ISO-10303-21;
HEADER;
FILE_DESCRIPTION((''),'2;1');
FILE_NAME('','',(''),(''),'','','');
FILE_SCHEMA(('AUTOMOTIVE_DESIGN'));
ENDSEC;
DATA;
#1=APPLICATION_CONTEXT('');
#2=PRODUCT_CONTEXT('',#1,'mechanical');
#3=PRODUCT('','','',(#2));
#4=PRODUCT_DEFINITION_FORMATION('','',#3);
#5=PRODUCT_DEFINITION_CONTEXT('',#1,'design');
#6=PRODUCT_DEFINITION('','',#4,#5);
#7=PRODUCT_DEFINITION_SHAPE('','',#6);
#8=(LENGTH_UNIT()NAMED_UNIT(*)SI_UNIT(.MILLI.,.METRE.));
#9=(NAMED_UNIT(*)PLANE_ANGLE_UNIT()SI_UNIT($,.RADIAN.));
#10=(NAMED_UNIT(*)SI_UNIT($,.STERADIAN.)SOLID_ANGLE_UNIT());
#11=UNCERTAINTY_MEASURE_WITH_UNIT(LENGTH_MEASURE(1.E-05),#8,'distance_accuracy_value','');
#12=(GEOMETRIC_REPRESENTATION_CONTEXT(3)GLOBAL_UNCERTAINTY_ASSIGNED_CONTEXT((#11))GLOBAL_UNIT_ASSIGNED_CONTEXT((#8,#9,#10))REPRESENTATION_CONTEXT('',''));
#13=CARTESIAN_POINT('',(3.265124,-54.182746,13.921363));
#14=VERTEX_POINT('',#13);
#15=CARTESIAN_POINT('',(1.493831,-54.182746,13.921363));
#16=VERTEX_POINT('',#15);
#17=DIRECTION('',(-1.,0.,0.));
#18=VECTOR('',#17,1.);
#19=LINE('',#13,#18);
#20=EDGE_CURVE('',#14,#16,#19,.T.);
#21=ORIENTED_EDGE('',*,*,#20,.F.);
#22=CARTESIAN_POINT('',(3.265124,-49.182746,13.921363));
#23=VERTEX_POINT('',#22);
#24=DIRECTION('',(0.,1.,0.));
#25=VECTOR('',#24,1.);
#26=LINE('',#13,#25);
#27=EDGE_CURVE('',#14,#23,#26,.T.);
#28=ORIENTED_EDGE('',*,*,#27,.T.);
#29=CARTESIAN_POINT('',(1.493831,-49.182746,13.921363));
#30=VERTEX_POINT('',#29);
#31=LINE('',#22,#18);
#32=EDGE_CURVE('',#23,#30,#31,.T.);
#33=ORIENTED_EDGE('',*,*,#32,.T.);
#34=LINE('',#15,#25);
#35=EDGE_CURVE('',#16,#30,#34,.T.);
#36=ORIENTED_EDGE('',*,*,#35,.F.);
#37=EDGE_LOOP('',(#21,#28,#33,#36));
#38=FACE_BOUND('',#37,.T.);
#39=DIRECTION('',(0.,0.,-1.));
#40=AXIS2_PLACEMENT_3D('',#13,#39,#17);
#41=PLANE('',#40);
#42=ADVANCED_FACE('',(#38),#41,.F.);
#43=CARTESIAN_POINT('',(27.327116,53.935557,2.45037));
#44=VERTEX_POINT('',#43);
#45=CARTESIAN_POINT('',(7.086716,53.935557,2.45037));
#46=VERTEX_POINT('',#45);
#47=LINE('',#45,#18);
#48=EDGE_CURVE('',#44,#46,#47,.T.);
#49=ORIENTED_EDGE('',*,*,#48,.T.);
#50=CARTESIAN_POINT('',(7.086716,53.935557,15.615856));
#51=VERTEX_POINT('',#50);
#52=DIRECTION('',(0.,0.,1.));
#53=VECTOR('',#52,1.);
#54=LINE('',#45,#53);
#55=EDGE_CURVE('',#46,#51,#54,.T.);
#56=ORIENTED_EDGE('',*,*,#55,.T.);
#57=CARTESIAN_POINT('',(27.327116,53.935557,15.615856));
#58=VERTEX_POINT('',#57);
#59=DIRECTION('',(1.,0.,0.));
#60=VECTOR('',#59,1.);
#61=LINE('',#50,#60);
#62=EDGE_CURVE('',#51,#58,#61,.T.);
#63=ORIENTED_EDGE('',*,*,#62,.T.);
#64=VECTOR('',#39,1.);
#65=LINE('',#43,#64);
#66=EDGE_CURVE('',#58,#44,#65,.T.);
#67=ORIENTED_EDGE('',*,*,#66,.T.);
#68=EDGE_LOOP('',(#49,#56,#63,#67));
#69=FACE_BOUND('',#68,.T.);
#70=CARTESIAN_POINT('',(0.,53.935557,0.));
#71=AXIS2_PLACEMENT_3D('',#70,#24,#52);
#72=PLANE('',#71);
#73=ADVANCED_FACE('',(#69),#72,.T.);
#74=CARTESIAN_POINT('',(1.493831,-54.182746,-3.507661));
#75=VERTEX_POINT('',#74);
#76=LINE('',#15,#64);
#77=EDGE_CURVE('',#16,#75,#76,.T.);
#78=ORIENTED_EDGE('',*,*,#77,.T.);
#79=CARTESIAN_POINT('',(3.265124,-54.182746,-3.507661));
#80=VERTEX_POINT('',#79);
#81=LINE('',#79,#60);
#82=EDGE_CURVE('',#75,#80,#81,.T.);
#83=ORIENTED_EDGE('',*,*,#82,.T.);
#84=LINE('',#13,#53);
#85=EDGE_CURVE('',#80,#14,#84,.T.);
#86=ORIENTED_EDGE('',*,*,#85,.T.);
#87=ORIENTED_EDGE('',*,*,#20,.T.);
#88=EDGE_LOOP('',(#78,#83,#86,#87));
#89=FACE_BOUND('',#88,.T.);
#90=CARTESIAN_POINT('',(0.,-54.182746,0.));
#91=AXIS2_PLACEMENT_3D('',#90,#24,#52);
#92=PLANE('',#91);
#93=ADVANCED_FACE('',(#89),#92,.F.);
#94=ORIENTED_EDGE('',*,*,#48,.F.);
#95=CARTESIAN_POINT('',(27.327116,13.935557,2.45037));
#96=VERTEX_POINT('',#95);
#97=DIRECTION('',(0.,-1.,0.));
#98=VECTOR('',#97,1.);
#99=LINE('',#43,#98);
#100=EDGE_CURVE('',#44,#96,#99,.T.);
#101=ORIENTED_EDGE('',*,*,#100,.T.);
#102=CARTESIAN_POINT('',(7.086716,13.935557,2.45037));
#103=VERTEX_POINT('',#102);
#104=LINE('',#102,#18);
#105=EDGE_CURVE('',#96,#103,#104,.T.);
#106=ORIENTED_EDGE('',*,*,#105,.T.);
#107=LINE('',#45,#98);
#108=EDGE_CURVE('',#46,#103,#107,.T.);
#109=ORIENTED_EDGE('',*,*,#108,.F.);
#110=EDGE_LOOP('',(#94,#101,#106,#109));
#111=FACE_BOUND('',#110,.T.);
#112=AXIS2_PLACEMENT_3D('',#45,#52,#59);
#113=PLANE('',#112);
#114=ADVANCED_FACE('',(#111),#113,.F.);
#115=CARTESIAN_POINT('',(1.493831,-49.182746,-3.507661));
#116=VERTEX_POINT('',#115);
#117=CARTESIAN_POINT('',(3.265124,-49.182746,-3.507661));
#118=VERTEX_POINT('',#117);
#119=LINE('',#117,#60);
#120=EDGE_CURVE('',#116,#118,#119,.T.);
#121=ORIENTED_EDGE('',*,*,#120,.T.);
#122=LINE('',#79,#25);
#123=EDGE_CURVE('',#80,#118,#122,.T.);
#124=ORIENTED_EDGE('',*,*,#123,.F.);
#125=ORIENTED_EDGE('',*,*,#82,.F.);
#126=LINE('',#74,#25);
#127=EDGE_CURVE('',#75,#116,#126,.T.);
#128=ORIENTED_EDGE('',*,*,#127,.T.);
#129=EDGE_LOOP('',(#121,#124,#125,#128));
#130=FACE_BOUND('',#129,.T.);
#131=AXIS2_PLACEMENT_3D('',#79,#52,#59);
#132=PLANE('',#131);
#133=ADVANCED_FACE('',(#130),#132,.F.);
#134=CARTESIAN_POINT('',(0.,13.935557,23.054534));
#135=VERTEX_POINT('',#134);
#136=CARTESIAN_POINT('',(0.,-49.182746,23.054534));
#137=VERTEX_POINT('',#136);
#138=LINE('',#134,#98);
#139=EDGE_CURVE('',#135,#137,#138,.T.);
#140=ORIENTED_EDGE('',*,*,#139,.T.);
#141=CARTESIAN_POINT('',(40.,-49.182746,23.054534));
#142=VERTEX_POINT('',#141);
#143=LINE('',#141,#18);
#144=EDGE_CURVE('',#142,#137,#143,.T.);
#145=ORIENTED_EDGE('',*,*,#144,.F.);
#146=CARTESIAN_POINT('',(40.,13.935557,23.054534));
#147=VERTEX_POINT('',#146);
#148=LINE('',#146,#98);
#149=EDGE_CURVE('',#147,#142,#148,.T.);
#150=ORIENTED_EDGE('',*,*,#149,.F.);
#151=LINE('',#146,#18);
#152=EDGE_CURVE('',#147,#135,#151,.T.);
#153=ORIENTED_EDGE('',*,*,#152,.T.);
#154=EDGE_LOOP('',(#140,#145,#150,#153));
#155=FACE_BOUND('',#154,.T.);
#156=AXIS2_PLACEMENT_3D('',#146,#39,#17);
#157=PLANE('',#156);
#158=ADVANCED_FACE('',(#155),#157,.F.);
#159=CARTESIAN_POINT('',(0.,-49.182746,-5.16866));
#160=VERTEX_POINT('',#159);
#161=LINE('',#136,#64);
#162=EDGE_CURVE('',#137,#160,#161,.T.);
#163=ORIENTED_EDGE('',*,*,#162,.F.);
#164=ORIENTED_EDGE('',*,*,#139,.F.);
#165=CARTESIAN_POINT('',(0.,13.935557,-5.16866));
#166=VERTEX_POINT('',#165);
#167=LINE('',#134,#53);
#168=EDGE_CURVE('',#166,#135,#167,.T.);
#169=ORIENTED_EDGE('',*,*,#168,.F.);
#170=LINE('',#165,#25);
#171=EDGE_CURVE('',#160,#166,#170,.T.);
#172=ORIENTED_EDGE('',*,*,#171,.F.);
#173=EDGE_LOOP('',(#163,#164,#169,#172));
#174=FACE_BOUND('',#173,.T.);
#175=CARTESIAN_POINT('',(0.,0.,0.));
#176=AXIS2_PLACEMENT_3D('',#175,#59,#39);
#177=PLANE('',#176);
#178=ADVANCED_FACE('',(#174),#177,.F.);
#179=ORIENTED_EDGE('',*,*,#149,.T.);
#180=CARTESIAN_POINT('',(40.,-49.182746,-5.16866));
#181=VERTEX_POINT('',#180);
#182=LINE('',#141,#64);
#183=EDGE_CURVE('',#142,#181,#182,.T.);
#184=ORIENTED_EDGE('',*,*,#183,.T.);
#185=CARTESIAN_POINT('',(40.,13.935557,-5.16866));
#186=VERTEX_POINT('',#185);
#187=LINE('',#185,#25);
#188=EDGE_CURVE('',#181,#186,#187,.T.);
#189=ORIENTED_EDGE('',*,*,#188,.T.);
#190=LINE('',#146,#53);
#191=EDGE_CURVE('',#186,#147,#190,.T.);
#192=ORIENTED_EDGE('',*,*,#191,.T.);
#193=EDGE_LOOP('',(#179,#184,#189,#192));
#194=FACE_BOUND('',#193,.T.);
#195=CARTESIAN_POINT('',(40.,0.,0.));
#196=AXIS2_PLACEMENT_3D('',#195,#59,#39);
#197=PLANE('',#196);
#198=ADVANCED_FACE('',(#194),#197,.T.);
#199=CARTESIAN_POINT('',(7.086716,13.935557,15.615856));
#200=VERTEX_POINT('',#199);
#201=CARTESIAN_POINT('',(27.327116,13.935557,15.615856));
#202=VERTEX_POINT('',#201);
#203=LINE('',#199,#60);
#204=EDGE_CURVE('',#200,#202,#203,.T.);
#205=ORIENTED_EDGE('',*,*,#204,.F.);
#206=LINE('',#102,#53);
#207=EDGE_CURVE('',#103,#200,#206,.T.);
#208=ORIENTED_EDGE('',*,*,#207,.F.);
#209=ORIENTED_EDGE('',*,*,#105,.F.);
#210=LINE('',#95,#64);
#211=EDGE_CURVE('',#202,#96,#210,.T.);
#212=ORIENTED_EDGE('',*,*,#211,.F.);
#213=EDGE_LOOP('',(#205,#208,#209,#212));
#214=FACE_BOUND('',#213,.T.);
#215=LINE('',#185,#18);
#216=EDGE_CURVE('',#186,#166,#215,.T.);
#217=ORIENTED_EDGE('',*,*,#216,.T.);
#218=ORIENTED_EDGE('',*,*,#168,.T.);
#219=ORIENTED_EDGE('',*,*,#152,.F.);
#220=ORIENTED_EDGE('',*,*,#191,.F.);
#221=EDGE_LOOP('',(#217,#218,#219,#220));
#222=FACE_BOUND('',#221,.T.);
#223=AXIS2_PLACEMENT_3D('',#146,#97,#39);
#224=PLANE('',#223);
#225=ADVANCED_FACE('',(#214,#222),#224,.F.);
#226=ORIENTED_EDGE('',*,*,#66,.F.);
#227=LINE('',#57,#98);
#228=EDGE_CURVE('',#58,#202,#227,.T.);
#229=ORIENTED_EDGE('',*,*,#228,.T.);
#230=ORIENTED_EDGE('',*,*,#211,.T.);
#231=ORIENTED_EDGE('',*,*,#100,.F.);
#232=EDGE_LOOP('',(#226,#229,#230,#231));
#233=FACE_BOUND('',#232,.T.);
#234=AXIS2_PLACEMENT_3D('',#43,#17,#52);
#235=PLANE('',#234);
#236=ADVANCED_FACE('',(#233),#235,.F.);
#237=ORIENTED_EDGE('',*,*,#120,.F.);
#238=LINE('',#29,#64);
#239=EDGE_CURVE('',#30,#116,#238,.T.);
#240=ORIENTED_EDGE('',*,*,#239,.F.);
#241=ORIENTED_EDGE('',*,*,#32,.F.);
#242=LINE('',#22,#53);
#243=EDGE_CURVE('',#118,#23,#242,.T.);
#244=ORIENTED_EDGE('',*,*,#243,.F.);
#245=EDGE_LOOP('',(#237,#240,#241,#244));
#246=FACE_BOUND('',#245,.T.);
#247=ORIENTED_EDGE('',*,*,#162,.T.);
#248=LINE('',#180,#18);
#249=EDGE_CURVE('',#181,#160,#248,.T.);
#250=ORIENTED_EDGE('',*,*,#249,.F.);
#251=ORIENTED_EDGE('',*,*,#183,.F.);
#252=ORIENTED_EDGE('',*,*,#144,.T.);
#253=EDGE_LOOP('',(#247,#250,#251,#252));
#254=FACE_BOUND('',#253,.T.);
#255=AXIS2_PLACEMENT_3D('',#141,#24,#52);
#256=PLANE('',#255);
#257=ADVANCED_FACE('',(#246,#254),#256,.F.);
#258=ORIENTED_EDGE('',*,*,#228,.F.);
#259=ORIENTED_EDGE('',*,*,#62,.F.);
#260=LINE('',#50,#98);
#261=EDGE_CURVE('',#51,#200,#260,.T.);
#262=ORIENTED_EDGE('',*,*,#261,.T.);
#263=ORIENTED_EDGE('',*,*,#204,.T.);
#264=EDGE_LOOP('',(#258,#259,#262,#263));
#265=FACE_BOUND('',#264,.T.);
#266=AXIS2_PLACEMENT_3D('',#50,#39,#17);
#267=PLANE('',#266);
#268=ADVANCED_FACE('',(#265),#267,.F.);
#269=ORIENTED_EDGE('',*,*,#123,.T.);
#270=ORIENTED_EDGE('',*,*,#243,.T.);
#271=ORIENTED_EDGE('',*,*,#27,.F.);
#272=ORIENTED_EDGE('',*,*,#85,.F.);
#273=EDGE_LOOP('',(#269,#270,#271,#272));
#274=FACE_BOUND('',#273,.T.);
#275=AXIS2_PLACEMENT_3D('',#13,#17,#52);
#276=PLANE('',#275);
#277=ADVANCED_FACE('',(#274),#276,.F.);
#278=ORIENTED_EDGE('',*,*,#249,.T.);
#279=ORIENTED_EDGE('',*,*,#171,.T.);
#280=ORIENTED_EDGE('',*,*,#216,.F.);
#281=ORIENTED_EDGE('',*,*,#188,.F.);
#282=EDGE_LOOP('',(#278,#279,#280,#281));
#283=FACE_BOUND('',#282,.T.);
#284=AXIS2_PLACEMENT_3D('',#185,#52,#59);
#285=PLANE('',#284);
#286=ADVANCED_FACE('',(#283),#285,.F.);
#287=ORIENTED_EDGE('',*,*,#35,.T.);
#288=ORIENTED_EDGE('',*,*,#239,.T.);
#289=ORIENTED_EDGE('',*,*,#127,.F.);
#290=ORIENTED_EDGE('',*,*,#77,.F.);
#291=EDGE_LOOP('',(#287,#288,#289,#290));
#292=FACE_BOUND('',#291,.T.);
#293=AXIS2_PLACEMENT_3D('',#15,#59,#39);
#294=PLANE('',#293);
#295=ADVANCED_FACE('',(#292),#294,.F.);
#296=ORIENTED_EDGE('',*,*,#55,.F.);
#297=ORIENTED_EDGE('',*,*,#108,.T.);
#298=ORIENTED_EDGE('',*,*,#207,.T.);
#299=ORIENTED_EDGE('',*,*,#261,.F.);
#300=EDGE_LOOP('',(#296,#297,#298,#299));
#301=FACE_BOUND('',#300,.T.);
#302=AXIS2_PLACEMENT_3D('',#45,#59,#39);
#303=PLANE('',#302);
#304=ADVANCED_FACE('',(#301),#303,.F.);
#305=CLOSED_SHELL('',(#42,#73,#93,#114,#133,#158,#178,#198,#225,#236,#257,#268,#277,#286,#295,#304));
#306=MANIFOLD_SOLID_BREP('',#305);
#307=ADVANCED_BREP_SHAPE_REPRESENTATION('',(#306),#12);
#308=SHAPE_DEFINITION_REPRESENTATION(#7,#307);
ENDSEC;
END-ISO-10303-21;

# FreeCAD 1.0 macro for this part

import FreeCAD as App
import Part
import Sketcher

V = App.Vector
Q = App.Units.Quantity

doc = App.newDocument("Part")
body = doc.addObject("PartDesign::Body", "Body")

# Sketch on YZ plane
sketch1 = body.newObject("Sketcher::SketchObject", "Sketch")
sketch1.AttachmentSupport = (doc.getObject("YZ_Plane"), [""])
sketch1.MapMode = "FlatFace"
sketch1.addGeometry([
    Part.LineSegment(V(14, 23, 0), V(-49, 23, 0)),
    Part.LineSegment(V(-49, 23, 0), V(-49, -5, 0)),
    Part.LineSegment(V(-49, -5, 0), V(14, -5, 0)),
    Part.LineSegment(V(14, -5, 0), V(14, 23, 0)),
], False)
sketch1.addConstraint([
    Sketcher.Constraint("Coincident", 0, 2, 1, 1),
    Sketcher.Constraint("Coincident", 1, 2, 2, 1),
    Sketcher.Constraint("Coincident", 2, 2, 3, 1),
    Sketcher.Constraint("Coincident", 3, 2, 0, 1),
    Sketcher.Constraint("Horizontal", 0),
    Sketcher.Constraint("Vertical", 1),
    Sketcher.Constraint("Horizontal", 2),
    Sketcher.Constraint("Vertical", 3),
    Sketcher.Constraint("DistanceX", 0, 2, 0, 1, Q("63.118302 mm")),
    Sketcher.Constraint("DistanceY", 1, 2, 1, 1, Q("28.223195 mm")),
    Sketcher.Constraint("DistanceY", 1, 2, -1, 1, Q("5.16866 mm")),
    Sketcher.Constraint("DistanceX", 0, 2, -1, 1, Q("49.182746 mm")),
])
pad1 = body.newObject("PartDesign::Pad", "Pad")
pad1.Profile = sketch1
pad1.Length = 40

# Sketch on XZ plane
sketch2 = body.newObject("Sketcher::SketchObject", "Sketch001")
sketch2.AttachmentSupport = (doc.getObject("XZ_Plane"), [""])
sketch2.MapMode = "FlatFace"
sketch2.AttachmentOffset = App.Placement(V(0, 0, -13.935557), App.Rotation())
sketch2.addGeometry([
    Part.LineSegment(V(7, 2, 0), V(7, 16, 0)),
    Part.LineSegment(V(7, 16, 0), V(27, 16, 0)),
    Part.LineSegment(V(27, 16, 0), V(27, 2, 0)),
    Part.LineSegment(V(27, 2, 0), V(7, 2, 0)),
], False)
sketch2.addConstraint([
    Sketcher.Constraint("Coincident", 0, 2, 1, 1),
    Sketcher.Constraint("Coincident", 1, 2, 2, 1),
    Sketcher.Constraint("Coincident", 2, 2, 3, 1),
    Sketcher.Constraint("Coincident", 3, 2, 0, 1),
    Sketcher.Constraint("Vertical", 0),
    Sketcher.Constraint("Horizontal", 1),
    Sketcher.Constraint("Vertical", 2),
    Sketcher.Constraint("Horizontal", 3),
    Sketcher.Constraint("DistanceX", 1, 1, 1, 2, Q("20.2404 mm")),
    Sketcher.Constraint("DistanceY", 0, 1, 0, 2, Q("13.165486 mm")),
    Sketcher.Constraint("DistanceY", -1, 1, 2, 2, Q("2.45037 mm")),
    Sketcher.Constraint("DistanceX", -1, 1, 0, 2, Q("7.086716 mm")),
])
pad2 = body.newObject("PartDesign::Pad", "Pad001")
pad2.Profile = sketch2
pad2.Length = 40
pad2.Reversed = True

# Sketch on XZ plane
sketch3 = body.newObject("Sketcher::SketchObject", "Sketch002")
sketch3.AttachmentSupport = (doc.getObject("XZ_Plane"), [""])
sketch3.MapMode = "FlatFace"
sketch3.AttachmentOffset = App.Placement(V(0, 0, 49.182746), App.Rotation())
sketch3.addGeometry([
    Part.LineSegment(V(3.3, -3.5, 0), V(3.3, 13.9, 0)),
    Part.LineSegment(V(3.3, 13.9, 0), V(1.5, 13.9, 0)),
    Part.LineSegment(V(1.5, 13.9, 0), V(1.5, -3.5, 0)),
    Part.LineSegment(V(1.5, -3.5, 0), V(3.3, -3.5, 0)),
], False)
sketch3.addConstraint([
    Sketcher.Constraint("Coincident", 0, 2, 1, 1),
    Sketcher.Constraint("Coincident", 1, 2, 2, 1),
    Sketcher.Constraint("Coincident", 2, 2, 3, 1),
    Sketcher.Constraint("Coincident", 3, 2, 0, 1),
    Sketcher.Constraint("Vertical", 0),
    Sketcher.Constraint("Horizontal", 1),
    Sketcher.Constraint("Vertical", 2),
    Sketcher.Constraint("Horizontal", 3),
    Sketcher.Constraint("DistanceX", 1, 2, 1, 1, Q("1.771293 mm")),
    Sketcher.Constraint("DistanceY", 0, 1, 0, 2, Q("17.429025 mm")),
    Sketcher.Constraint("DistanceX", -1, 1, 1, 2, Q("1.493831 mm")),
    Sketcher.Constraint("DistanceY", 2, 2, -1, 1, Q("3.507661 mm")),
])
pad3 = body.newObject("PartDesign::Pad", "Pad002")
pad3.Profile = sketch3
pad3.Length = 5

doc.recompute()
